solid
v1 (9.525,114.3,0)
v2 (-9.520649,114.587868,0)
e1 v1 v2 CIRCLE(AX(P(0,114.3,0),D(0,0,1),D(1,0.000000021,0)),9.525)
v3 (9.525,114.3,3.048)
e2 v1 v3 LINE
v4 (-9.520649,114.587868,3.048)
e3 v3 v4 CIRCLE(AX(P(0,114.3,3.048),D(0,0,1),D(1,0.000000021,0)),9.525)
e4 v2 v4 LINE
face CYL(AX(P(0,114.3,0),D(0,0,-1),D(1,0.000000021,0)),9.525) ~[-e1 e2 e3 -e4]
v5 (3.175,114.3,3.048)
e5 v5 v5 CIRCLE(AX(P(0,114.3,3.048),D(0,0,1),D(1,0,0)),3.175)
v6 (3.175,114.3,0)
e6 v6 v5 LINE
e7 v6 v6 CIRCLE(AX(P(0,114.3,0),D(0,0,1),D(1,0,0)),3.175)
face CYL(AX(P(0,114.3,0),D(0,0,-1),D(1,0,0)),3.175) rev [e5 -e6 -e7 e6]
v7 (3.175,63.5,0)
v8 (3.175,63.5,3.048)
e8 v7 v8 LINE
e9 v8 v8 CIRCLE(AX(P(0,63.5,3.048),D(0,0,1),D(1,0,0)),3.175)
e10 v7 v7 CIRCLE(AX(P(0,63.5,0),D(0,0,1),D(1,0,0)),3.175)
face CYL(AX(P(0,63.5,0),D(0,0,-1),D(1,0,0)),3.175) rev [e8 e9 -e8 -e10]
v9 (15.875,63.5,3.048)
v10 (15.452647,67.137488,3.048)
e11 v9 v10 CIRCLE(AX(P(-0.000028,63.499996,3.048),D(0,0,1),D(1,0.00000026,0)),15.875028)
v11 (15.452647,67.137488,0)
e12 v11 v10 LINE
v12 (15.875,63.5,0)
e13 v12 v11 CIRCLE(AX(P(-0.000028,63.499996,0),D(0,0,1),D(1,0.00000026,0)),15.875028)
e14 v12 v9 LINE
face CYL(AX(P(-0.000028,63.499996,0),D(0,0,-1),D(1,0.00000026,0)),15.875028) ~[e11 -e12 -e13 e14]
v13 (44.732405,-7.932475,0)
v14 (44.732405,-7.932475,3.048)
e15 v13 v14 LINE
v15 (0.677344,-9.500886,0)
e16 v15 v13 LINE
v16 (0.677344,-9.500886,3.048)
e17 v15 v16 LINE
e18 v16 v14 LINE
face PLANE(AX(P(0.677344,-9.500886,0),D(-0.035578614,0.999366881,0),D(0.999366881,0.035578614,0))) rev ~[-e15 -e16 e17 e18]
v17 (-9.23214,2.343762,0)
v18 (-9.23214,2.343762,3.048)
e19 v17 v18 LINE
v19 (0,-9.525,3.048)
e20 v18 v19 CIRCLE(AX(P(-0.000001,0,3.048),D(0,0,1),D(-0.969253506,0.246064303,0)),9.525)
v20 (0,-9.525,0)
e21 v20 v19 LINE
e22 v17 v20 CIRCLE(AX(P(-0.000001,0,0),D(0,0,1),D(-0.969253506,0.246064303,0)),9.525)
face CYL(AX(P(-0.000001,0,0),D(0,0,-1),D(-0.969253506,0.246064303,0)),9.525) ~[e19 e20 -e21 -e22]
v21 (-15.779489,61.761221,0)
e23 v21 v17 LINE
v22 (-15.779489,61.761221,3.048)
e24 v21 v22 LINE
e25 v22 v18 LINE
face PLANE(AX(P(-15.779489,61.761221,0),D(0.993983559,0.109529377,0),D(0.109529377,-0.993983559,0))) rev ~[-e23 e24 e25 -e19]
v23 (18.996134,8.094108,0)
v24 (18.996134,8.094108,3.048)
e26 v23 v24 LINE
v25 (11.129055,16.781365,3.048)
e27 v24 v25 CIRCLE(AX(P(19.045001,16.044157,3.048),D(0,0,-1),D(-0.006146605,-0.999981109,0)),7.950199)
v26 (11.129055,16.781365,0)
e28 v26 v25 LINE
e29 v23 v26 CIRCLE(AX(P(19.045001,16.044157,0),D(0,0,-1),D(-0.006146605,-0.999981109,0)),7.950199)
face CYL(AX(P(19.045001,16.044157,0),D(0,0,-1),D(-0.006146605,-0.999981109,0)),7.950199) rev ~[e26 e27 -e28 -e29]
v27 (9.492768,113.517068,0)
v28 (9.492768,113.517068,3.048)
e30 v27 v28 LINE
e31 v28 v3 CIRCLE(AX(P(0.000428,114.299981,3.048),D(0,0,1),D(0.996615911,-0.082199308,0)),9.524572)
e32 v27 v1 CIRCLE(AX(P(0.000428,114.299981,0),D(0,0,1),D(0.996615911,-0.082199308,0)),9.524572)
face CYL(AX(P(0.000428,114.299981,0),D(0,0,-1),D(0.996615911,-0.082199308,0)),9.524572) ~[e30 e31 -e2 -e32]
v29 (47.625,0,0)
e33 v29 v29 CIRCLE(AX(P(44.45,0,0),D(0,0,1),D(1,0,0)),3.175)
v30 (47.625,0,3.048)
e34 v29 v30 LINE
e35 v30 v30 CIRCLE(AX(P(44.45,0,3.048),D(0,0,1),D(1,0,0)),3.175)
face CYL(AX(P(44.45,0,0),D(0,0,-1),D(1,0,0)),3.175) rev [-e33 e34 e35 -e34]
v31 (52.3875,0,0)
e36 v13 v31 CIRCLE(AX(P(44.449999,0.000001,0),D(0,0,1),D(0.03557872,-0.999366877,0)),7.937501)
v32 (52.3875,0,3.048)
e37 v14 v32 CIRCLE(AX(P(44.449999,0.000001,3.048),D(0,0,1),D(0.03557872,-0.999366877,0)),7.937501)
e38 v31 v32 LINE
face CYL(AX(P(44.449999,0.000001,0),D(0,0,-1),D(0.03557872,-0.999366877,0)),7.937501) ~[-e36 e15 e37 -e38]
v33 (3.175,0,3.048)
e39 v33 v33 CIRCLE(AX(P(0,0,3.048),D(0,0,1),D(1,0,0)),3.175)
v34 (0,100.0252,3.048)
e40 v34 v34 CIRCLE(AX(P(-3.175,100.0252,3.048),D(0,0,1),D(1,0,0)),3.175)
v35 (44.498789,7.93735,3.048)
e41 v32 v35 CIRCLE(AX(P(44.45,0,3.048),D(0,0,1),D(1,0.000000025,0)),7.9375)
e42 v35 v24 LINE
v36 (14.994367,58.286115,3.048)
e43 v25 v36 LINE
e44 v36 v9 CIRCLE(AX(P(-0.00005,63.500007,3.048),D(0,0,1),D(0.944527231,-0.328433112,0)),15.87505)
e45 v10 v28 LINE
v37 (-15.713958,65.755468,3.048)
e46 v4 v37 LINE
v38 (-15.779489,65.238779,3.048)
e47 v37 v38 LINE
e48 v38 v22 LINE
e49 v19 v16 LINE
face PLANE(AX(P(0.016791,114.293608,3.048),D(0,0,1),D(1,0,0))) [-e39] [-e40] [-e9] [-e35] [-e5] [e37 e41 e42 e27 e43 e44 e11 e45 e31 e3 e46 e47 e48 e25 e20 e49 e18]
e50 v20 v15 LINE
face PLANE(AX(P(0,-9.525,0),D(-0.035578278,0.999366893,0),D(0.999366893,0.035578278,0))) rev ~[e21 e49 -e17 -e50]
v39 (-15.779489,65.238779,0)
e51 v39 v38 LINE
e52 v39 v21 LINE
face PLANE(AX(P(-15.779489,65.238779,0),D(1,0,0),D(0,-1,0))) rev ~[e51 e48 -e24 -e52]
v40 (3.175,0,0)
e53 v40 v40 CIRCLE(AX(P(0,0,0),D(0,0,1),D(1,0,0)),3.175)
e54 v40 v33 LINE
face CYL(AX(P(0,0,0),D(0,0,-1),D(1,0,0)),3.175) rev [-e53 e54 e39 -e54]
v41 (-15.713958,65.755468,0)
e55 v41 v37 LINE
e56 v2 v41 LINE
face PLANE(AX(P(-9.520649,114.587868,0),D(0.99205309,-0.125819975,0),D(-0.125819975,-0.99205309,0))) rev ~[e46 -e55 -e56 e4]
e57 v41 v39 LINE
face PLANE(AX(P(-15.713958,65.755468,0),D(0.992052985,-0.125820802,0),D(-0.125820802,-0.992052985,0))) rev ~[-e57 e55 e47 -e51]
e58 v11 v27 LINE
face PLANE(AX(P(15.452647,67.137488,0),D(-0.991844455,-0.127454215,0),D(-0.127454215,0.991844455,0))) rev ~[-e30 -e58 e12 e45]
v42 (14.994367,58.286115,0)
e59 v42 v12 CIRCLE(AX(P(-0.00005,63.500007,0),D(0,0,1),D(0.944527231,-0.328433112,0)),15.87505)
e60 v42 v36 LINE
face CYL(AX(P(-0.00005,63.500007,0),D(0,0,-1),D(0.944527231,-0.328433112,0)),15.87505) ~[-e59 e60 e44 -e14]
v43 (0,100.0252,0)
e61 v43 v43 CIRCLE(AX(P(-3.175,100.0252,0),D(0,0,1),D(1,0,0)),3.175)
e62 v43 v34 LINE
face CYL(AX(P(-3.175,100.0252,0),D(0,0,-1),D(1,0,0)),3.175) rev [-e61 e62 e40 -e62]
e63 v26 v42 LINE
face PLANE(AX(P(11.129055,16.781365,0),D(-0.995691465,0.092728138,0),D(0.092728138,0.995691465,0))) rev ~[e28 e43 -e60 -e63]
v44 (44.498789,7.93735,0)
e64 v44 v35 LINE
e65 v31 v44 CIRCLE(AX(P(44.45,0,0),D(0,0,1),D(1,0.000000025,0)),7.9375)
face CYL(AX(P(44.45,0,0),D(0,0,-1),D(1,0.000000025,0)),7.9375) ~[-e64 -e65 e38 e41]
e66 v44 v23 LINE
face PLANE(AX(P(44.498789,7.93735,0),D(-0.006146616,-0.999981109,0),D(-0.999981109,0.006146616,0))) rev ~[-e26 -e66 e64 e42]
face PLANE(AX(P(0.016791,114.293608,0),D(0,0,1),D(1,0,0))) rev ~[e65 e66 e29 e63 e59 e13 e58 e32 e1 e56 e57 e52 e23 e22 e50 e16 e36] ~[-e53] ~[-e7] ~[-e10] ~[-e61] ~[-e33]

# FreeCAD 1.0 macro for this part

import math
import FreeCAD as App
import Part
import Sketcher
Q = App.Units.Quantity

doc = App.newDocument("Part")
params = doc.addObject("Spreadsheet::Sheet", "Params")
for row, (alias, value) in enumerate([
    ("sketch1_diameter", "0.25 in"),
    ("sketch1_radius", "0.375 in"),
    ("sketch1_radius2", "0.3125 in"),
    ("sketch1_radius3", "0.313 in"),
    ("pad1_length", "0.12 in"),
], start=1):
    params.set(f"A{row}", alias)
    params.set(f"B{row}", "=" + value)
    params.setAlias(f"B{row}", alias)

body = doc.addObject("PartDesign::Body", "Body")

sketch1 = body.newObject("Sketcher::SketchObject", "Sketch")
sketch1.AttachmentSupport = (doc.getObject("XY_Plane"), [""])
sketch1.MapMode = "FlatFace"
sketch1.addGeometry([
    Part.ArcOfCircle(Part.Circle(App.Vector(0, 114.3, 0), App.Vector(0, 0, 1), 9.5), math.radians(0), math.radians(178)),
    Part.LineSegment(App.Vector(-9.5, 114.6, 0), App.Vector(-15.7, 65.8, 0)),
    Part.LineSegment(App.Vector(-15.7, 65.8, 0), App.Vector(-15.8, 65.2, 0)),
    Part.LineSegment(App.Vector(-15.8, 65.2, 0), App.Vector(-15.8, 61.8, 0)),
    Part.LineSegment(App.Vector(-15.8, 61.8, 0), App.Vector(-9.2, 2.3, 0)),
    Part.ArcOfCircle(Part.Circle(App.Vector(0, 0, 0), App.Vector(0, 0, 1), 9.5), math.radians(166), math.radians(270)),
    Part.LineSegment(App.Vector(0, -9.5, 0), App.Vector(0.7, -9.5, 0)),
    Part.LineSegment(App.Vector(0.7, -9.5, 0), App.Vector(44.7, -7.9, 0)),
    Part.ArcOfCircle(Part.Circle(App.Vector(44.4, 0, 0), App.Vector(0, 0, 1), 7.9), math.radians(-88), math.radians(0)),
    Part.ArcOfCircle(Part.Circle(App.Vector(44.4, 0, 0), App.Vector(0, 0, 1), 7.9), math.radians(0), math.radians(90)),
    Part.LineSegment(App.Vector(44.5, 7.9, 0), App.Vector(19, 8.1, 0)),
    Part.ArcOfCircle(Part.Circle(App.Vector(19, 16, 0), App.Vector(0, 0, 1), 8), math.radians(175), math.radians(270)),
    Part.LineSegment(App.Vector(11.1, 16.8, 0), App.Vector(15, 58.3, 0)),
    Part.ArcOfCircle(Part.Circle(App.Vector(0, 63.5, 0), App.Vector(0, 0, 1), 15.9), math.radians(-19.17), math.radians(0)),
    Part.ArcOfCircle(Part.Circle(App.Vector(0, 63.5, 0), App.Vector(0, 0, 1), 15.9), math.radians(0), math.radians(13.25)),
    Part.LineSegment(App.Vector(15.5, 67.1, 0), App.Vector(9.5, 113.5, 0)),
    Part.ArcOfCircle(Part.Circle(App.Vector(0, 114.3, 0), App.Vector(0, 0, 1), 9.5), math.radians(-4.71), math.radians(0)),
    Part.Circle(App.Vector(0, 0, 0), App.Vector(0, 0, 1), 3.2),
    Part.Circle(App.Vector(44.5, 0, 0), App.Vector(0, 0, 1), 3.2),
    Part.Circle(App.Vector(0, 63.5, 0), App.Vector(0, 0, 1), 3.2),
    Part.Circle(App.Vector(-3.2, 100, 0), App.Vector(0, 0, 1), 3.2),
    Part.Circle(App.Vector(0, 114.3, 0), App.Vector(0, 0, 1), 3.2),
], False)
sketch1.addConstraint([
    Sketcher.Constraint("Coincident", 0, 2, 1, 1),
    Sketcher.Constraint("Coincident", 1, 2, 2, 1),
    Sketcher.Constraint("Coincident", 2, 2, 3, 1),
    Sketcher.Constraint("Coincident", 3, 2, 4, 1),
    Sketcher.Constraint("Coincident", 4, 2, 5, 1),
    Sketcher.Constraint("Coincident", 5, 2, 6, 1),
    Sketcher.Constraint("Coincident", 6, 2, 7, 1),
    Sketcher.Constraint("Tangent", 7, 2, 8, 1),
    Sketcher.Constraint("Tangent", 8, 2, 9, 1),
    Sketcher.Constraint("Tangent", 9, 2, 10, 1),
    Sketcher.Constraint("Tangent", 10, 2, 11, 2),
    Sketcher.Constraint("Tangent", 11, 1, 12, 1),
    Sketcher.Constraint("Coincident", 12, 2, 13, 1),
    Sketcher.Constraint("Tangent", 13, 2, 14, 1),
    Sketcher.Constraint("Coincident", 14, 2, 15, 1),
    Sketcher.Constraint("Coincident", 15, 2, 16, 1),
    Sketcher.Constraint("Tangent", 16, 2, 0, 1),
    Sketcher.Constraint("Vertical", 3),
    Sketcher.Constraint("Coincident", 5, 3, -1, 1),
    Sketcher.Constraint("Coincident", 17, 3, -1, 1),
    Sketcher.Constraint("Coincident", 18, 3, 8, 3),
    Sketcher.Constraint("Coincident", 21, 3, 0, 3),
    Sketcher.Constraint("Equal", 0, 5),
    Sketcher.Constraint("Equal", 8, 9),
    Sketcher.Constraint("Equal", 17, 18),
    Sketcher.Constraint("Equal", 18, 19),
    Sketcher.Constraint("Equal", 19, 20),
    Sketcher.Constraint("Equal", 20, 21),
    Sketcher.Constraint("PointOnObject", 0, 3, -2),
    Sketcher.Constraint("PointOnObject", 8, 3, -1),
    Sketcher.Constraint("PointOnObject", 19, 3, -2),
    Sketcher.Constraint("PointOnObject", 5, 2, -2),
    Sketcher.Constraint("PointOnObject", 8, 2, -1),
    Sketcher.Constraint("Parallel", 1, 2),
    Sketcher.Constraint("Parallel", 6, 7),
    Sketcher.Constraint("Horizontal", 19, 3, 13, 2),
    Sketcher.Constraint("Horizontal", 21, 3, 16, 2),
    Sketcher.Constraint("Diameter", 17, Q("0.25 in")),
    Sketcher.Constraint("Radius", 0, Q("0.375 in")),
    Sketcher.Constraint("Radius", 8, Q("0.3125 in")),
    Sketcher.Constraint("Radius", 11, Q("0.313 in")),
    Sketcher.Constraint("DistanceY", 14, 3, 0, 3, Q("2.0000002 in")),
    Sketcher.Constraint("DistanceY", 19, 3, 0, 3, Q("2 in")),
    Sketcher.Constraint("DistanceY", -1, 1, 0, 3, Q("4.5 in")),
    Sketcher.Constraint("DistanceX", -1, 1, 8, 3, Q("1.75 in")),
    Sketcher.Constraint("DistanceX", 20, 3, -1, 1, Q("0.125 in")),
    Sketcher.Constraint("DistanceY", -1, 1, 20, 3, Q("3.938 in")),
    Sketcher.Constraint("DistanceX", -1, 1, 13, 2, Q("0.625 in")),
    Sketcher.Constraint("Radius", 13, 15.87505),
    Sketcher.Constraint("Radius", 16, 9.524572),
    Sketcher.Constraint("Radius", 14, 15.875028),
    Sketcher.Constraint("DistanceX", -1, 1, 11, 3, 19.045001),
    Sketcher.Constraint("DistanceX", 0, 2, 13, 3, 9.520599),
    Sketcher.Constraint("DistanceY", 1, 2, 0, 2, 48.8324),
    Sketcher.Constraint("DistanceY", 15, 2, 0, 2, 1.0708),
    Sketcher.Constraint("Distance", 2, 0.520828),
    Sketcher.Constraint("Distance", 7, 44.082971),
    Sketcher.Constraint("Distance", 12, 41.684348),
    Sketcher.Constraint("Distance", 15, 46.760941),
    Sketcher.Constraint("DistanceY", 3, 2, 3, 1, 3.477558),
    Sketcher.Constraint("DistanceX", 2, 2, -1, 1, 15.779489),
    Sketcher.Constraint("DistanceX", 4, 2, -1, 1, 9.23214),
    Sketcher.Constraint("DistanceX", -1, 1, 9, 2, 44.498789),
])
sketch1.setExpression("Constraints[37]", "Params.sketch1_diameter")
sketch1.setExpression("Constraints[38]", "Params.sketch1_radius")
sketch1.setExpression("Constraints[39]", "Params.sketch1_radius2")
sketch1.setExpression("Constraints[40]", "Params.sketch1_radius3")
pad1 = body.newObject("PartDesign::Pad", "Pad")
pad1.Profile = sketch1
pad1.setExpression("Length", "Params.pad1_length")

doc.recompute()
